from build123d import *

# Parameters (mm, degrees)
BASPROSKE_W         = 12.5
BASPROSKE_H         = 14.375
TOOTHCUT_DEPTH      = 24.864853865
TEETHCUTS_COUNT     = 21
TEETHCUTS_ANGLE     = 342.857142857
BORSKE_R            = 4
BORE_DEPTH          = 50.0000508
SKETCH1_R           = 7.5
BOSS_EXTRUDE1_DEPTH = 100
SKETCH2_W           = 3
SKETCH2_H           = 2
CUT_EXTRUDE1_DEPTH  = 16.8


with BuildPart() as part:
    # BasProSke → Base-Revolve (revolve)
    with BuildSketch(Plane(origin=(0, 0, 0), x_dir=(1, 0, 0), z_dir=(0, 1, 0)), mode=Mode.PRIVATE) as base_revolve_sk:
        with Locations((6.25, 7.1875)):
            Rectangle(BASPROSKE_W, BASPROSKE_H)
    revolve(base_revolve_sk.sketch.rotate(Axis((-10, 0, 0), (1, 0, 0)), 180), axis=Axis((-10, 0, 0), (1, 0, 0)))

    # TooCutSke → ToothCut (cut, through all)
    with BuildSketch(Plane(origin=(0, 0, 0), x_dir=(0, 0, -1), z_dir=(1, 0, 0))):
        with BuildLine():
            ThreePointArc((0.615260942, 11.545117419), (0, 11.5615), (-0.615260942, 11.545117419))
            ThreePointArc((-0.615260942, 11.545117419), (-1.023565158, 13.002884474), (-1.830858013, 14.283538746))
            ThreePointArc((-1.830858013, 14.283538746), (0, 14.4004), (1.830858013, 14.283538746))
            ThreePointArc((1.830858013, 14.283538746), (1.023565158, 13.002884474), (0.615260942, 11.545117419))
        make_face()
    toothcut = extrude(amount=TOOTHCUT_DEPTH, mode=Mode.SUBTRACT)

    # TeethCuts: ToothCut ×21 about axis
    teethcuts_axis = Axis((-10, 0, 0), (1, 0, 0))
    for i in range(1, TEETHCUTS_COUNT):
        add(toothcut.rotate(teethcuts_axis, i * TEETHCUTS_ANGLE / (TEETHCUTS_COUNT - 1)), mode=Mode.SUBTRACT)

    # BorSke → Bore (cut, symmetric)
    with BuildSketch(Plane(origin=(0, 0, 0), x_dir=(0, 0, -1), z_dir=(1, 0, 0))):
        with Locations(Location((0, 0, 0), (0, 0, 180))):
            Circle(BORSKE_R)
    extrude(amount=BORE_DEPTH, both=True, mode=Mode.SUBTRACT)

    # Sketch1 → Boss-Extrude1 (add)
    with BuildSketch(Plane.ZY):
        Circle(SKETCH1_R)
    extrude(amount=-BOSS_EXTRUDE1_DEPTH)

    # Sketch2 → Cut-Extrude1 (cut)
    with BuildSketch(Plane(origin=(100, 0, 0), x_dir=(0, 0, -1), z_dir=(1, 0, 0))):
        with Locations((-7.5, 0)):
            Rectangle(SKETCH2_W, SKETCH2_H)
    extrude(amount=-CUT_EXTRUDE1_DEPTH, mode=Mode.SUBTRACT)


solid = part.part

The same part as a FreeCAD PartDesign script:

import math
import FreeCAD as App
import Part
import Sketcher
Q = App.Units.Quantity


def add_polygon(sketch, points):
    """Adds a closed chain of lines whose ends are joined by coincident constraints."""
    first, n = sketch.GeometryCount, len(points)
    for a, b in zip(points, points[1:] + points[:1]):
        sketch.addGeometry(Part.LineSegment(App.Vector(*a, 0), App.Vector(*b, 0)), False)
    for i in range(n):
        sketch.addConstraint(Sketcher.Constraint("Coincident", first + i, 2, first + (i + 1) % n, 1))

doc = App.newDocument("Part")
params = doc.addObject("Spreadsheet::Sheet", "Params")
for row, (alias, value) in enumerate([
    ("sketch1_width", "12.5 mm"),
    ("revolution_angle", "360 deg"),
    ("sketch2_radius", "5.25 mm"),
    ("sketch3_diameter", "8 mm"),
    ("pocket2_length", "100.000102 mm"),
    ("sketch4_diameter", "15 mm"),
    ("pad1_length", "100 mm"),
    ("sketch5_width", "2 mm"),
    ("sketch5_height", "3 mm"),
    ("pocket3_length", "16.8 mm"),
], start=1):
    params.set(f"A{row}", alias)
    params.set(f"B{row}", "=" + value)
    params.setAlias(f"B{row}", alias)

body = doc.addObject("PartDesign::Body", "Body")

# Sketch on XZ plane
sketch1 = body.newObject("Sketcher::SketchObject", "Sketch")
sketch1.AttachmentSupport = (doc.getObject("XZ_Plane"), [""])
sketch1.MapMode = "FlatFace"
add_polygon(sketch1, [(0, -14), (0, 0), (12, 0), (12, -14)])  # lines 0-3
sketch1.addConstraint([
    Sketcher.Constraint("Vertical", 0),
    Sketcher.Constraint("Horizontal", 1),
    Sketcher.Constraint("Vertical", 2),
    Sketcher.Constraint("Horizontal", 3),
    Sketcher.Constraint("Coincident", 0, 2, -1, 1),
    Sketcher.Constraint("DistanceX", 1, 1, 1, 2, Q("12.5 mm")),
    Sketcher.Constraint("DistanceY", 0, 1, 0, 2, Q("14.375 mm")),
])
sketch1.setExpression("Constraints[9]", "Params.sketch1_width")
revolution = body.newObject("PartDesign::Revolution", "Revolution")
revolution.Profile = sketch1
revolution.ReferenceAxis = (sketch1, ["H_Axis"])
revolution.setExpression("Angle", "Params.revolution_angle")

# Sketch on YZ plane
sketch2 = body.newObject("Sketcher::SketchObject", "Sketch001")
sketch2.AttachmentSupport = (doc.getObject("YZ_Plane"), [""])
sketch2.MapMode = "FlatFace"
sketch2.addGeometry([
    Part.ArcOfCircle(Part.Circle(App.Vector(0, 0, 0), App.Vector(0, 0, 1), 11.6), math.radians(-3.05), math.radians(3.05)),
    Part.ArcOfCircle(Part.Circle(App.Vector(10.9, -5.8, 0), App.Vector(0, 0, 1), 5.2), math.radians(49), math.radians(83)),
    Part.ArcOfCircle(Part.Circle(App.Vector(0, 0, 0), App.Vector(0, 0, 1), 14.4), math.radians(-7.3), math.radians(7.3)),
    Part.ArcOfCircle(Part.Circle(App.Vector(10.9, 5.8, 0), App.Vector(0, 0, 1), 5.2), math.radians(-83), math.radians(-49)),
], False)
sketch2.addConstraint([
    Sketcher.Constraint("Coincident", 0, 1, 1, 2),
    Sketcher.Constraint("Coincident", 1, 1, 2, 1),
    Sketcher.Constraint("Coincident", 2, 2, 3, 2),
    Sketcher.Constraint("Coincident", 3, 1, 0, 2),
    Sketcher.Constraint("Coincident", 0, 3, -1, 1),
    Sketcher.Constraint("Coincident", 2, 3, -1, 1),
    Sketcher.Constraint("Equal", 1, 3),
    Sketcher.Constraint("Symmetric", 1, 3, 3, 3, -1),
    Sketcher.Constraint("Radius", 1, Q("5.25 mm")),
    Sketcher.Constraint("Radius", 0, Q("11.5615 mm")),
    Sketcher.Constraint("Radius", 2, Q("14.4004 mm")),
    Sketcher.Constraint("DistanceY", 0, 1, 3, 3, Q("6.437298 mm")),
    Sketcher.Constraint("DistanceX", -1, 1, 1, 3, Q("10.872822 mm")),
])
sketch2.setExpression("Constraints[8]", "Params.sketch2_radius")
pocket1 = body.newObject("PartDesign::Pocket", "Pocket")
pocket1.Profile = sketch2
pocket1.Type = "ThroughAll"
pocket1.Reversed = True
doc.recompute()

polarpattern = body.newObject("PartDesign::PolarPattern", "PolarPattern")
polarpattern.Originals = [pocket1]
polarpattern.Axis = (doc.getObject("X_Axis"), [""])
polarpattern.Angle = 360
polarpattern.Occurrences = 21
body.Tip = polarpattern

# Sketch on YZ plane
sketch3 = body.newObject("Sketcher::SketchObject", "Sketch002")
sketch3.AttachmentSupport = (doc.getObject("YZ_Plane"), [""])
sketch3.MapMode = "FlatFace"
sketch3.addGeometry(Part.Circle(App.Vector(0, 0, 0), App.Vector(0, 0, 1), 4), False)
sketch3.addConstraint([
    Sketcher.Constraint("Coincident", 0, 3, -1, 1),
    Sketcher.Constraint("Diameter", 0, Q("8 mm")),
])
sketch3.setExpression("Constraints[1]", "Params.sketch3_diameter")
pocket2 = body.newObject("PartDesign::Pocket", "Pocket001")
pocket2.Profile = sketch3
pocket2.setExpression("Length", "Params.pocket2_length")
pocket2.Midplane = True

# Sketch on YZ plane
sketch4 = body.newObject("Sketcher::SketchObject", "Sketch003")
sketch4.AttachmentSupport = (doc.getObject("YZ_Plane"), [""])
sketch4.MapMode = "FlatFace"
sketch4.addGeometry(Part.Circle(App.Vector(0, 0, 0), App.Vector(0, 0, 1), 8), False)
sketch4.addConstraint([
    Sketcher.Constraint("Coincident", 0, 3, -1, 1),
    Sketcher.Constraint("Diameter", 0, Q("15 mm")),
])
sketch4.setExpression("Constraints[1]", "Params.sketch4_diameter")
pad1 = body.newObject("PartDesign::Pad", "Pad")
pad1.Profile = sketch4
pad1.setExpression("Length", "Params.pad1_length")

# Sketch on YZ plane
sketch5 = body.newObject("Sketcher::SketchObject", "Sketch004")
sketch5.AttachmentSupport = (doc.getObject("YZ_Plane"), [""])
sketch5.MapMode = "FlatFace"
sketch5.AttachmentOffset = App.Placement(App.Vector(0, 0, 100), App.Rotation())
add_polygon(sketch5, [(1, 9), (-1, 9), (-1, 6), (1, 6)])  # lines 0-3
sketch5.addConstraint([
    Sketcher.Constraint("Horizontal", 0),
    Sketcher.Constraint("Vertical", 1),
    Sketcher.Constraint("Horizontal", 2),
    Sketcher.Constraint("Vertical", 3),
    Sketcher.Constraint("DistanceX", 0, 2, 0, 1, Q("2 mm")),
    Sketcher.Constraint("DistanceY", 1, 2, 1, 1, Q("3 mm")),
    Sketcher.Constraint("DistanceX", 0, 2, -1, 1, Q("1 mm")),
    Sketcher.Constraint("DistanceY", -1, 1, 0, 2, Q("9 mm")),
])
sketch5.setExpression("Constraints[8]", "Params.sketch5_width")
sketch5.setExpression("Constraints[9]", "Params.sketch5_height")
pocket3 = body.newObject("PartDesign::Pocket", "Pocket002")
pocket3.Profile = sketch5
pocket3.setExpression("Length", "Params.pocket3_length")

doc.recompute()
